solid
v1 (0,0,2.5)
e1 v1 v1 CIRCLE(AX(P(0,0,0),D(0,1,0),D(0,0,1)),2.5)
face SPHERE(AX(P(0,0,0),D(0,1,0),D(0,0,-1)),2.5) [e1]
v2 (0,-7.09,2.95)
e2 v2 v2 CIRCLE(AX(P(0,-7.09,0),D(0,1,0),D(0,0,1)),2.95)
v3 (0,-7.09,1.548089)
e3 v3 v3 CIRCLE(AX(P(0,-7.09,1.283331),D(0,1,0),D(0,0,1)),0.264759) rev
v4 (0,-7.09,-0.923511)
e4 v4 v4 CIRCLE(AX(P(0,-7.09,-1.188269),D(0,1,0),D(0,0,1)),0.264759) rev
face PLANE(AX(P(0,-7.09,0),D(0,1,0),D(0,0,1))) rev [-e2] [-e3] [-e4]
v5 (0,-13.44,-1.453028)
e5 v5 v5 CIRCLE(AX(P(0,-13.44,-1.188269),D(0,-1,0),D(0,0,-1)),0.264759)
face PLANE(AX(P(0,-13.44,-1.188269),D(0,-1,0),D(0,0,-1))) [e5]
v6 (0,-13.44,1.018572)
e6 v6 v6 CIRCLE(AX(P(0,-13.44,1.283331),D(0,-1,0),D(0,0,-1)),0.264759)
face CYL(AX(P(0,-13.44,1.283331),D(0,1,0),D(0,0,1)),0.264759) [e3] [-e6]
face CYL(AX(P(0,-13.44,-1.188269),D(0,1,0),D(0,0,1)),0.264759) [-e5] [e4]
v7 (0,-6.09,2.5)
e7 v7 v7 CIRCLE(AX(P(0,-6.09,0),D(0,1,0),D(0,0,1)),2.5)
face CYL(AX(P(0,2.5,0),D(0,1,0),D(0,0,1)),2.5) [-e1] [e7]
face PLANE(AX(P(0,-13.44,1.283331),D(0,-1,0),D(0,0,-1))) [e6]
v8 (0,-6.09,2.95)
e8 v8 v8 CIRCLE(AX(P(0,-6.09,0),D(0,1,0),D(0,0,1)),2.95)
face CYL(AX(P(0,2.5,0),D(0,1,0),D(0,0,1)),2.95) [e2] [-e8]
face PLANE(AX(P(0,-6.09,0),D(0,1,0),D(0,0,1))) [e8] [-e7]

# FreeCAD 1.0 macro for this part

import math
import FreeCAD as App
import Part
import Sketcher

doc = App.newDocument("Part")
body = doc.addObject("PartDesign::Body", "Body")

sketch1 = body.newObject("Sketcher::SketchObject", "Sketch")
sketch1.AttachmentSupport = (doc.getObject("YZ_Plane"), [""])
sketch1.MapMode = "FlatFace"
sketch1.addGeometry([
    Part.ArcOfCircle(Part.Circle(App.Vector(0, 0, 0), App.Vector(0, 0, 1), 2.5), math.radians(-90), math.radians(0)),
    Part.LineSegment(App.Vector(2.5, 0, 0), App.Vector(-7.09, 0, 0)),
    Part.LineSegment(App.Vector(-7.09, 0, 0), App.Vector(-7.09, -2.95, 0)),
    Part.LineSegment(App.Vector(-7.09, -2.95, 0), App.Vector(-6.09, -2.95, 0)),
    Part.LineSegment(App.Vector(-6.09, -2.95, 0), App.Vector(-6.09, -2.5, 0)),
    Part.LineSegment(App.Vector(-6.09, -2.5, 0), App.Vector(0, -2.5, 0)),
], False)
sketch1.addConstraint([
    Sketcher.Constraint("Coincident", 0, 2, 1, 1),
    Sketcher.Constraint("Coincident", 1, 2, 2, 1),
    Sketcher.Constraint("Coincident", 2, 2, 3, 1),
    Sketcher.Constraint("Coincident", 3, 2, 4, 1),
    Sketcher.Constraint("Coincident", 4, 2, 5, 1),
    Sketcher.Constraint("Tangent", 5, 2, 0, 1),
    Sketcher.Constraint("Horizontal", 1),
    Sketcher.Constraint("Vertical", 2),
    Sketcher.Constraint("Horizontal", 3),
    Sketcher.Constraint("Vertical", 4),
    Sketcher.Constraint("Horizontal", 5),
    Sketcher.Constraint("Coincident", 0, 3, -1, 1),
    Sketcher.Constraint("PointOnObject", 0, 2, -1),
    Sketcher.Constraint("Radius", 0, 2.5),
    Sketcher.Constraint("DistanceX", 3, 1, 3, 2, 1.0),
    Sketcher.Constraint("DistanceX", 1, 2, 1, 1, 9.59),
    Sketcher.Constraint("DistanceY", 2, 2, 2, 1, 2.95),
])
revolution = body.newObject("PartDesign::Revolution", "Revolution")
revolution.Profile = sketch1
revolution.ReferenceAxis = (sketch1, ["H_Axis"])
revolution.Angle = 360

sketch2 = body.newObject("Sketcher::SketchObject", "Sketch001")
sketch2.AttachmentSupport = (doc.getObject("XZ_Plane"), [""])
sketch2.MapMode = "FlatFace"
sketch2.AttachmentOffset = App.Placement(App.Vector(0, 0, 7.09), App.Rotation())
sketch2.addGeometry([
    Part.Circle(App.Vector(0, 1.28, 0), App.Vector(0, 0, 1), 0.26),
    Part.Circle(App.Vector(0, -1.19, 0), App.Vector(0, 0, 1), 0.26),
], False)
sketch2.addConstraint([
    Sketcher.Constraint("Equal", 0, 1),
    Sketcher.Constraint("PointOnObject", 0, 3, -2),
    Sketcher.Constraint("PointOnObject", 1, 3, -2),
    Sketcher.Constraint("Diameter", 0, 0.529517),
    Sketcher.Constraint("DistanceY", 1, 3, 0, 3, 2.4716),
    Sketcher.Constraint("DistanceY", -1, 1, 0, 3, 1.283331),
])
pad1 = body.newObject("PartDesign::Pad", "Pad")
pad1.Profile = sketch2
pad1.Length = 6.35

doc.recompute()
